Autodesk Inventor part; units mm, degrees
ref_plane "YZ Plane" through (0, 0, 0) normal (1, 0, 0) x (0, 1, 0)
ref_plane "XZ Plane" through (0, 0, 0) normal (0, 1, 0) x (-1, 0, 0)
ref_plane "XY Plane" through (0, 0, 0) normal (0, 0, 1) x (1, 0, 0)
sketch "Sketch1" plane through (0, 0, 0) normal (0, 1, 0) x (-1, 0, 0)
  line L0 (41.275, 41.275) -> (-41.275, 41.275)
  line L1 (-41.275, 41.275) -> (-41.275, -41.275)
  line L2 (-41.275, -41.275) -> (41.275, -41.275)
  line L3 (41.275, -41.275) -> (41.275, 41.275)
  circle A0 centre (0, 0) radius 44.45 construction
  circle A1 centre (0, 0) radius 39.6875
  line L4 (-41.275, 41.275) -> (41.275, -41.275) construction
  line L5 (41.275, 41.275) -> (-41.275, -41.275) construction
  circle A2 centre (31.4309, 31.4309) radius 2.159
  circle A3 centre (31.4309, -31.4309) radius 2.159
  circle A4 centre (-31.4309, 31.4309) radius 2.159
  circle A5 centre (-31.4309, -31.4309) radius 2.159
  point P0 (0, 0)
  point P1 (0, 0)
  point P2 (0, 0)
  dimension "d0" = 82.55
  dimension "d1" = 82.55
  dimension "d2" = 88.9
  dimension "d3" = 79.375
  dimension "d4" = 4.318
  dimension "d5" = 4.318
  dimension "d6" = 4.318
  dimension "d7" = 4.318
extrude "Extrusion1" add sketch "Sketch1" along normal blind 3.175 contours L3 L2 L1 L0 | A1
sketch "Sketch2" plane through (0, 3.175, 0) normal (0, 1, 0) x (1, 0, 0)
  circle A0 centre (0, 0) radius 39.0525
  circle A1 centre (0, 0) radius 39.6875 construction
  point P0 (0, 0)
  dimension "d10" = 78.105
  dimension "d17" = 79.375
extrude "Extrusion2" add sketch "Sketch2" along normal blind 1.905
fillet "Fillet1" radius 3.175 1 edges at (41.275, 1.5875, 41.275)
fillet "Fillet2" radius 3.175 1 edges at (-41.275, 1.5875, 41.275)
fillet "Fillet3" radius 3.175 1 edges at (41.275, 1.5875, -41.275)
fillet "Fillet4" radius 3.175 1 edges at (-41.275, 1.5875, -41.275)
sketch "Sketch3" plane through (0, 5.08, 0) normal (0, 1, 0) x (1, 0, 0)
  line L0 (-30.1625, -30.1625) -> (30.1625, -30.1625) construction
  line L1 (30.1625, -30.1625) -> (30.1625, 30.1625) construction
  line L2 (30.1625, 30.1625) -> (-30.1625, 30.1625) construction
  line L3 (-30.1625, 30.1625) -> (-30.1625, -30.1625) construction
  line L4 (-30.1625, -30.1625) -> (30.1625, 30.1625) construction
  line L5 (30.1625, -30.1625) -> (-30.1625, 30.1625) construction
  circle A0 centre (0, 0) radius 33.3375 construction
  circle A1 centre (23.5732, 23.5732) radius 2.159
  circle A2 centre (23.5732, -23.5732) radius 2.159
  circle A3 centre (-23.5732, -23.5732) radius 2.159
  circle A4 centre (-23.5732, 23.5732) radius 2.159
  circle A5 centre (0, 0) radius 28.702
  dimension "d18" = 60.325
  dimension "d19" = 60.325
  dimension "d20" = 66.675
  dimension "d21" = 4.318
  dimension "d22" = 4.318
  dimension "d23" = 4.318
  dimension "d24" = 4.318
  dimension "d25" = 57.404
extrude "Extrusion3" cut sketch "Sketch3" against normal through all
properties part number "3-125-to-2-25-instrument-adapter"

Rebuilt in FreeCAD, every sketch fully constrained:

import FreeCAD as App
import Part
import Sketcher
from FreeCAD import Vector
Q = App.Units.Quantity


def edges_at(feature, points):
    """Names of the edges that pass closest to the given points."""
    edges = feature.Shape.Edges
    near = lambda p: min(range(len(edges)), key=lambda i: edges[i].distToShape(Part.Vertex(*p))[0])
    return sorted({f"Edge{near(p) + 1}" for p in points})


def add_polygon(sketch, points):
    """Adds a closed chain of lines whose ends are joined by coincident constraints."""
    first, n = sketch.GeometryCount, len(points)
    for a, b in zip(points, points[1:] + points[:1]):
        sketch.addGeometry(Part.LineSegment(App.Vector(*a, 0), App.Vector(*b, 0)), False)
    for i in range(n):
        sketch.addConstraint(Sketcher.Constraint("Coincident", first + i, 2, first + (i + 1) % n, 1))

doc = App.newDocument("Part")
body = doc.addObject("PartDesign::Body", "Body")

sketch1 = body.newObject("Sketcher::SketchObject", "Sketch")
sketch1.AttachmentSupport = (doc.getObject("XZ_Plane"), [""])
sketch1.MapMode = "FlatFace"
add_polygon(sketch1, [(-41.3, -41.3), (-41.3, 41.3), (41.3, 41.3), (41.3, -41.3)])
sketch1.addGeometry(Part.Circle(Vector(31.4, -31.4, 0), Vector(0, 0, 1), 2.2), False)
sketch1.addGeometry(Part.Circle(Vector(-31.4, -31.4, 0), Vector(0, 0, 1), 2.2), False)
sketch1.addGeometry(Part.Circle(Vector(31.4, 31.4, 0), Vector(0, 0, 1), 2.2), False)
sketch1.addGeometry(Part.Circle(Vector(-31.4, 31.4, 0), Vector(0, 0, 1), 2.2), False)
sketch1.addConstraint([
    Sketcher.Constraint("Vertical", 0),
    Sketcher.Constraint("Horizontal", 1),
    Sketcher.Constraint("Vertical", 2),
    Sketcher.Constraint("Horizontal", 3),
    Sketcher.Constraint("Equal", 4, 5),
    Sketcher.Constraint("Equal", 5, 6),
    Sketcher.Constraint("Equal", 6, 7),
    Sketcher.Constraint("Symmetric", 5, 3, 6, 3, -1, 1),
    Sketcher.Constraint("Symmetric", 4, 3, 7, 3, -1, 1),
    Sketcher.Constraint("Symmetric", 0, 2, 2, 2, -1, 1),
    Sketcher.Constraint("Symmetric", 4, 3, 5, 3, -2),
    Sketcher.Constraint("Equal", 3, 0),
    Sketcher.Constraint("Diameter", 4, Q("0.17 in")),
    Sketcher.Constraint("DistanceX", 1, 1, 1, 2, Q("3.25 in")),
    Sketcher.Constraint("DistanceX", -1, 1, 4, 3, Q("31.431 mm")),
    Sketcher.Constraint("DistanceY", 4, 3, -1, 1, Q("31.431 mm")),
])
pad1 = body.newObject("PartDesign::Pad", "Pad")
pad1.Profile = sketch1
pad1.Length = Q("0.125 in")
pad1.Reversed = True

sketch2 = body.newObject("Sketcher::SketchObject", "Sketch001")
sketch2.AttachmentSupport = (doc.getObject("XZ_Plane"), [""])
sketch2.MapMode = "FlatFace"
sketch2.AttachmentOffset = App.Placement(Vector(0, 0, -0.125 * 25.4), App.Rotation())
sketch2.addGeometry(Part.Circle(Vector(0, 0, 0), Vector(0, 0, 1), 39), False)
sketch2.addConstraint([
    Sketcher.Constraint("Coincident", 0, 3, -1, 1),
    Sketcher.Constraint("Diameter", 0, Q("3.075 in")),
])
pad2 = body.newObject("PartDesign::Pad", "Pad001")
pad2.Profile = sketch2
pad2.Length = Q("0.075 in")
pad2.Reversed = True
doc.recompute()

fillet = body.newObject("PartDesign::Fillet", "Fillet")
fillet.Base = (pad2, edges_at(pad2, [(41.275, 1.587, 41.275)]))
fillet.Radius = Q("0.125 in")
doc.recompute()

fillet2 = body.newObject("PartDesign::Fillet", "Fillet001")
fillet2.Base = (fillet, edges_at(fillet, [(-41.275, 1.587, 41.275)]))
fillet2.Radius = Q("0.125 in")
doc.recompute()

fillet3 = body.newObject("PartDesign::Fillet", "Fillet002")
fillet3.Base = (fillet2, edges_at(fillet2, [(41.275, 1.587, -41.275)]))
fillet3.Radius = Q("0.125 in")
doc.recompute()

fillet4 = body.newObject("PartDesign::Fillet", "Fillet003")
fillet4.Base = (fillet3, edges_at(fillet3, [(-41.275, 1.587, -41.275)]))
fillet4.Radius = Q("0.125 in")

sketch3 = body.newObject("Sketcher::SketchObject", "Sketch002")
sketch3.AttachmentSupport = (doc.getObject("XZ_Plane"), [""])
sketch3.MapMode = "FlatFace"
sketch3.AttachmentOffset = App.Placement(Vector(0, 0, -0.2 * 25.4), App.Rotation())
sketch3.addGeometry([
    Part.Circle(Vector(23.6, -23.6, 0), Vector(0, 0, 1), 2.2),
    Part.Circle(Vector(23.6, 23.6, 0), Vector(0, 0, 1), 2.2),
    Part.Circle(Vector(-23.6, 23.6, 0), Vector(0, 0, 1), 2.2),
    Part.Circle(Vector(-23.6, -23.6, 0), Vector(0, 0, 1), 2.2),
    Part.Circle(Vector(0, 0, 0), Vector(0, 0, 1), 28.7),
], False)
sketch3.addConstraint([
    Sketcher.Constraint("Coincident", 4, 3, -1, 1),
    Sketcher.Constraint("Equal", 0, 1),
    Sketcher.Constraint("Equal", 1, 2),
    Sketcher.Constraint("Equal", 2, 3),
    Sketcher.Constraint("Symmetric", 0, 3, 2, 3, -1, 1),
    Sketcher.Constraint("Symmetric", 1, 3, 3, 3, -1, 1),
    Sketcher.Constraint("Symmetric", 1, 3, 2, 3, -2),
    Sketcher.Constraint("Diameter", 0, Q("0.17 in")),
    Sketcher.Constraint("Diameter", 4, Q("2.26 in")),
    Sketcher.Constraint("DistanceX", -1, 1, 0, 3, Q("23.5732 mm")),
    Sketcher.Constraint("DistanceY", 0, 3, -1, 1, Q("23.5732 mm")),
])
pocket1 = body.newObject("PartDesign::Pocket", "Pocket")
pocket1.Profile = sketch3
pocket1.Type = "ThroughAll"
pocket1.Reversed = True

doc.recompute()
